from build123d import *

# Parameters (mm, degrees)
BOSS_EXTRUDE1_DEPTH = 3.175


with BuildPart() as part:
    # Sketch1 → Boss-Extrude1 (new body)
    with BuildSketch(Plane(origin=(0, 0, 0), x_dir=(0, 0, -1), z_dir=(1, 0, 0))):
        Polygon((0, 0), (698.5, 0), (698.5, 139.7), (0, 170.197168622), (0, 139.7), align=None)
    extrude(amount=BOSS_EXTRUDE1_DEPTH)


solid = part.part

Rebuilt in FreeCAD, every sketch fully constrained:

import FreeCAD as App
import Part
import Sketcher
Q = App.Units.Quantity


def add_polygon(sketch, points):
    """Adds a closed chain of lines whose ends are joined by coincident constraints."""
    first, n = sketch.GeometryCount, len(points)
    for a, b in zip(points, points[1:] + points[:1]):
        sketch.addGeometry(Part.LineSegment(App.Vector(*a, 0), App.Vector(*b, 0)), False)
    for i in range(n):
        sketch.addConstraint(Sketcher.Constraint("Coincident", first + i, 2, first + (i + 1) % n, 1))

doc = App.newDocument("Part")
body = doc.addObject("PartDesign::Body", "Body")

# Sketch on YZ plane
sketch1 = doc.addObject("Sketcher::SketchObject", "Sketch")
body.addObject(sketch1)
sketch1.AttachmentSupport = (doc.YZ_Plane, [""])
sketch1.MapMode = "FlatFace"
add_polygon(sketch1, [(0, 0), (0, -698), (140, -698), (170, 0)])  # lines 0-3
sketch1.addConstraint(Sketcher.Constraint("Vertical", 0))
sketch1.addConstraint(Sketcher.Constraint("Horizontal", 1))
sketch1.addConstraint(Sketcher.Constraint("Horizontal", 3))
sketch1.addConstraint(Sketcher.Constraint("Coincident", 3, 2, -1, 1))
sketch1.addConstraint(Sketcher.Constraint("DistanceX", 1, 1, 1, 2, Q("5.5 in")))
sketch1.addConstraint(Sketcher.Constraint("DistanceY", 0, 2, 0, 1, Q("27.5 in")))
sketch1.addConstraint(Sketcher.Constraint("Angle", 2, Q("87.5 deg")))
pad1 = doc.addObject("PartDesign::Pad", "Pad")
body.addObject(pad1)
pad1.Profile = sketch1
pad1.Length = Q("0.125 in")

doc.recompute()
